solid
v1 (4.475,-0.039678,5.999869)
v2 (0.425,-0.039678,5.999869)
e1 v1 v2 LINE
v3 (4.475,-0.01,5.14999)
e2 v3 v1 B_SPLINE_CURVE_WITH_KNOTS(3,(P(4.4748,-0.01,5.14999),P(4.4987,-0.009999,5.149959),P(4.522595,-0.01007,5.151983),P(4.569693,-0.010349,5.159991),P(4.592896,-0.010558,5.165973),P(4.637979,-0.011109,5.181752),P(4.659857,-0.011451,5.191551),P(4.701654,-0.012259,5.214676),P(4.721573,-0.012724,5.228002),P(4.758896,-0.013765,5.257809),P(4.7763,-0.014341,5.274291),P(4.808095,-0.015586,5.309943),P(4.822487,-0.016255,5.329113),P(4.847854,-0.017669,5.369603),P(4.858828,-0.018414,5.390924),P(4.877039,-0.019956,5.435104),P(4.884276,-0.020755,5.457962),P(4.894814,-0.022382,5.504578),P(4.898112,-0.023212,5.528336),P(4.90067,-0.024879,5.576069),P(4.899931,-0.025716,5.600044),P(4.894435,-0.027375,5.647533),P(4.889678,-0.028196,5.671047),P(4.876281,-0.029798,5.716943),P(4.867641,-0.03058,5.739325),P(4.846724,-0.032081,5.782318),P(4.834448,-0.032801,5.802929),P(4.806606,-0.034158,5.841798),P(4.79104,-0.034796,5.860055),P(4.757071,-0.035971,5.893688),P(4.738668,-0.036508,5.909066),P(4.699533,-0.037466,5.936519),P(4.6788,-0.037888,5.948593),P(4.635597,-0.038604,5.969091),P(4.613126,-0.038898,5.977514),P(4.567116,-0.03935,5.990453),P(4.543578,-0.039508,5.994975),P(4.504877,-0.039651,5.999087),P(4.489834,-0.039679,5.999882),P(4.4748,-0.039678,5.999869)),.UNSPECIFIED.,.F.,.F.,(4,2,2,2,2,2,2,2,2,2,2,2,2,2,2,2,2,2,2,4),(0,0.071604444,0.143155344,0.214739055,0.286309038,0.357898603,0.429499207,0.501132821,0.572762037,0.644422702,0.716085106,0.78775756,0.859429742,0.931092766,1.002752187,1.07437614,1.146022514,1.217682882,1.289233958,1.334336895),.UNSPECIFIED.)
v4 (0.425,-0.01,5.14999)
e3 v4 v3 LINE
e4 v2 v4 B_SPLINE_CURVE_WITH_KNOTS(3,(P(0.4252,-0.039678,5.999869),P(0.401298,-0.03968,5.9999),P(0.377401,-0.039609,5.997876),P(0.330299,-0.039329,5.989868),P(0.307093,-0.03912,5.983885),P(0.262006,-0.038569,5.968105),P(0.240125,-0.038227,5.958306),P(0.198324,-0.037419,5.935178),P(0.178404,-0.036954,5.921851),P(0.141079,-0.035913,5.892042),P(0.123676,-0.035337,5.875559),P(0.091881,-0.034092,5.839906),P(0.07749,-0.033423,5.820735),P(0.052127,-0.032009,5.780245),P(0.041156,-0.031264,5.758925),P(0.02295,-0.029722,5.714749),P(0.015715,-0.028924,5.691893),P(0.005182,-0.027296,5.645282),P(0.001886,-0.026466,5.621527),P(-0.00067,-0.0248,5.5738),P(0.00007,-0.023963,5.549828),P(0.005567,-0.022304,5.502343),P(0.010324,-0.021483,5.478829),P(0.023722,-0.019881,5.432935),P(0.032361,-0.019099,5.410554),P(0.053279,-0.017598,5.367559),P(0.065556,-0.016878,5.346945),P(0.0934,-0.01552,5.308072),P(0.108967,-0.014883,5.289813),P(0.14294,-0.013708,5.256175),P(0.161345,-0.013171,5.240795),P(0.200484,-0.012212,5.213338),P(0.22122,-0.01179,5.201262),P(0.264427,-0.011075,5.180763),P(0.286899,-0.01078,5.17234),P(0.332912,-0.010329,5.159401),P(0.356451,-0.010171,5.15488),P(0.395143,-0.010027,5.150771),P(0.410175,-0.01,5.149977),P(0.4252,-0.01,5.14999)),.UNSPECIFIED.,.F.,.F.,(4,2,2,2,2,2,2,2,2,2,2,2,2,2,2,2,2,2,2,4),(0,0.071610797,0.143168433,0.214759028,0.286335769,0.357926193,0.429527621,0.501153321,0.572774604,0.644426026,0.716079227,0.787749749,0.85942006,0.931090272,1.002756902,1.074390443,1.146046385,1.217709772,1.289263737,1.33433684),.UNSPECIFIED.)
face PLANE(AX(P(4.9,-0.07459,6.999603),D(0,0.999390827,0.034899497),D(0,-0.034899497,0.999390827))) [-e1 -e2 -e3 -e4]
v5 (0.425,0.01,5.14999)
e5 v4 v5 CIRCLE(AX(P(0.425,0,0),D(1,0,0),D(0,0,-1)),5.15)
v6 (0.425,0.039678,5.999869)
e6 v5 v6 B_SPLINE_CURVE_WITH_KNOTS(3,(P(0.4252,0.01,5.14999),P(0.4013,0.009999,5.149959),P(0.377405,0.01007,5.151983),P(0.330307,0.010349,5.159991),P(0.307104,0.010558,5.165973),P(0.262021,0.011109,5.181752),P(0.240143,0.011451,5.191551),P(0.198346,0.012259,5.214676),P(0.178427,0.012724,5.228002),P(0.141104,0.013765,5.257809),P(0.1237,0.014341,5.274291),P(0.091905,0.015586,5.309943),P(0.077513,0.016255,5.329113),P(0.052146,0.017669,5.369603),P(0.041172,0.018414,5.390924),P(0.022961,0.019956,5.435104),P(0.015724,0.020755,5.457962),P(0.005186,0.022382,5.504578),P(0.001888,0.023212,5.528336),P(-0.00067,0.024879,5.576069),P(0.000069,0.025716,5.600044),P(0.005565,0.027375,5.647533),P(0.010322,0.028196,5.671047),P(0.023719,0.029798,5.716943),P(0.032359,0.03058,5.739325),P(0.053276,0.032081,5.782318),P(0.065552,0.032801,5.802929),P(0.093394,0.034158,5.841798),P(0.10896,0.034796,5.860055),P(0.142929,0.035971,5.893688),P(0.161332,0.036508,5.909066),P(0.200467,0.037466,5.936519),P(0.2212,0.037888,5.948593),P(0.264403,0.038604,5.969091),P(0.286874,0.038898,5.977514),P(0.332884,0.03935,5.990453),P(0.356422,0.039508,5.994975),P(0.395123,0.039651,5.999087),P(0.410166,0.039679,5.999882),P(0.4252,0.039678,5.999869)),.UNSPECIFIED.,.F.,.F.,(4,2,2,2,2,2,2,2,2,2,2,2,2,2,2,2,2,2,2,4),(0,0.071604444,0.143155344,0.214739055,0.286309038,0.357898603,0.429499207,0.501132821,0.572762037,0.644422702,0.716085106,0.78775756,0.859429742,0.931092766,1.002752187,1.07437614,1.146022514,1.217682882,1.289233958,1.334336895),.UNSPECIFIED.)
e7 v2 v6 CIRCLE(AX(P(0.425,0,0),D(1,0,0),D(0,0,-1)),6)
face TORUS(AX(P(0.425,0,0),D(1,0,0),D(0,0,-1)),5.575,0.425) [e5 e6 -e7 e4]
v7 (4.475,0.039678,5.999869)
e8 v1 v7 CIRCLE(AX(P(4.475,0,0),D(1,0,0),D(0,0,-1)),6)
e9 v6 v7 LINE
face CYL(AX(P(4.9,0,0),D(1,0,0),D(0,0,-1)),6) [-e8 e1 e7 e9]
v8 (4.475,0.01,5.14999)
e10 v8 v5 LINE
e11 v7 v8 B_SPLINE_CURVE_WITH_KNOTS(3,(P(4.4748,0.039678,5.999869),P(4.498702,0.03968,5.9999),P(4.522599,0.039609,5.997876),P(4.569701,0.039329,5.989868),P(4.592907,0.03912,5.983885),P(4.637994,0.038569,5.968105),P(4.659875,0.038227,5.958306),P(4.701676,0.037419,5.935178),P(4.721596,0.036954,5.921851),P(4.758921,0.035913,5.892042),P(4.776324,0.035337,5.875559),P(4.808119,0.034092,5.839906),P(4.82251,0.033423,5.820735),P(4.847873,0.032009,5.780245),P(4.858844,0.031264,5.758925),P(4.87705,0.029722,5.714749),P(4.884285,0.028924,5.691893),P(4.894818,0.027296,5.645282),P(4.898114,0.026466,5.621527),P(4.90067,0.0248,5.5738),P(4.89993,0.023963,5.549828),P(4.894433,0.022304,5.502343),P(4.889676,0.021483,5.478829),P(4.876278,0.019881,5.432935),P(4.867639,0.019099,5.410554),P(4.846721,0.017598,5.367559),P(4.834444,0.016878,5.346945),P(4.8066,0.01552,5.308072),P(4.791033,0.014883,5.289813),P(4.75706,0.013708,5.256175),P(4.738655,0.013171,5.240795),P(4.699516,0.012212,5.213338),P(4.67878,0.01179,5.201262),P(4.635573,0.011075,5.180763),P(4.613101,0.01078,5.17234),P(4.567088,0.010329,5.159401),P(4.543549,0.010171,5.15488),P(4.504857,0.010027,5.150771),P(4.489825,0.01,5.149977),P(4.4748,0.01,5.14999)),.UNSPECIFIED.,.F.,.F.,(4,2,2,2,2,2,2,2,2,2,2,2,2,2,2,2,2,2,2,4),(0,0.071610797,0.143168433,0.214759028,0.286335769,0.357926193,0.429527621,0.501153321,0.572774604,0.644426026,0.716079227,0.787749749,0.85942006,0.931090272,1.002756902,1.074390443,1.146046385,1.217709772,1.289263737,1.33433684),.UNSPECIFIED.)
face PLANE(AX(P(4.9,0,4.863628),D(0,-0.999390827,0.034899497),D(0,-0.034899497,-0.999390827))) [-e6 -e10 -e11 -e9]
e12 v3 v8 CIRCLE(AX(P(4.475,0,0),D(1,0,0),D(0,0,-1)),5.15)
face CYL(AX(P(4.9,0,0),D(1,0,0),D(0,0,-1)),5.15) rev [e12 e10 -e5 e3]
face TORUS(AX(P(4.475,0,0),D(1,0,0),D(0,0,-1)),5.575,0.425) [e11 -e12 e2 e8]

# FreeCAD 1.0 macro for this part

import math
import FreeCAD as App
import Part
import Sketcher
Q = App.Units.Quantity

doc = App.newDocument("Part")
body = doc.addObject("PartDesign::Body", "Body")

# Sketch on XY plane
sketch1 = body.newObject("Sketcher::SketchObject", "Sketch")
sketch1.AttachmentSupport = (doc.getObject("XY_Plane"), [""])
sketch1.MapMode = "FlatFace"
sketch1.addGeometry(Part.LineSegment(App.Vector(0.42, 5.15, 0), App.Vector(4.47, 5.15, 0)), False)
sketch1.addGeometry(Part.ArcOfCircle(Part.Circle(App.Vector(4.47, 5.58, 0), App.Vector(0, 0, 1), 0.42), math.radians(-90), math.radians(90)), False)
sketch1.addGeometry(Part.LineSegment(App.Vector(4.47, 6, 0), App.Vector(0.42, 6, 0)), False)
sketch1.addGeometry(Part.ArcOfCircle(Part.Circle(App.Vector(0.42, 5.58, 0), App.Vector(0, 0, 1), 0.42), math.radians(90), math.radians(270)), False)
sketch1.addConstraint(Sketcher.Constraint("Tangent", 0, 2, 1, 1))
sketch1.addConstraint(Sketcher.Constraint("Tangent", 1, 2, 2, 1))
sketch1.addConstraint(Sketcher.Constraint("Tangent", 2, 2, 3, 1))
sketch1.addConstraint(Sketcher.Constraint("Tangent", 3, 2, 0, 1))
sketch1.addConstraint(Sketcher.Constraint("Horizontal", 0))
sketch1.addConstraint(Sketcher.Constraint("Horizontal", 2))
sketch1.addConstraint(Sketcher.Constraint("DistanceY", -1, 1, 1, 2, Q("6 mm")))
sketch1.addConstraint(Sketcher.Constraint("Radius", 1, Q("0.425 mm")))
sketch1.addConstraint(Sketcher.Constraint("DistanceX", 0, 1, 0, 2, Q("4.05 mm")))
sketch1.addConstraint(Sketcher.Constraint("DistanceX", -1, 1, 1, 3, Q("4.475 mm")))
revolution = body.newObject("PartDesign::Revolution", "Revolution")
revolution.Profile = sketch1
revolution.ReferenceAxis = (sketch1, ["H_Axis"])
revolution.Angle = 360

# Sketch on YZ plane
sketch2 = body.newObject("Sketcher::SketchObject", "Sketch001")
sketch2.AttachmentSupport = (doc.getObject("YZ_Plane"), [""])
sketch2.MapMode = "FlatFace"
sketch2.addGeometry(Part.LineSegment(App.Vector(-0.07, 7, 0), App.Vector(0, 4.86, 0)), False)
sketch2.addGeometry(Part.LineSegment(App.Vector(0, 4.86, 0), App.Vector(0.07, 7, 0)), False)
sketch2.addGeometry(Part.ArcOfCircle(Part.Circle(App.Vector(0, 0, 0), App.Vector(0, 0, 1), 7), math.radians(89.39), math.radians(90.61)), False)
sketch2.addConstraint(Sketcher.Constraint("Coincident", 0, 2, 1, 1))
sketch2.addConstraint(Sketcher.Constraint("Coincident", 1, 2, 2, 1))
sketch2.addConstraint(Sketcher.Constraint("Coincident", 2, 2, 0, 1))
sketch2.addConstraint(Sketcher.Constraint("Coincident", 2, 3, -1, 1))
sketch2.addConstraint(Sketcher.Constraint("PointOnObject", 0, 2, -2))
sketch2.addConstraint(Sketcher.Constraint("Horizontal", 1, 2, 2, 2))
sketch2.addConstraint(Sketcher.Constraint("Radius", 2, Q("6.999999 mm")))
sketch2.addConstraint(Sketcher.Constraint("Angle", 0, Q("-88 deg")))
sketch2.addConstraint(Sketcher.Constraint("DistanceX", -1, 1, 1, 2, Q("0.07459 mm")))
pocket1 = body.newObject("PartDesign::Pocket", "Pocket")
pocket1.Profile = sketch2
pocket1.Length = 4.9
pocket1.Reversed = True

doc.recompute()
